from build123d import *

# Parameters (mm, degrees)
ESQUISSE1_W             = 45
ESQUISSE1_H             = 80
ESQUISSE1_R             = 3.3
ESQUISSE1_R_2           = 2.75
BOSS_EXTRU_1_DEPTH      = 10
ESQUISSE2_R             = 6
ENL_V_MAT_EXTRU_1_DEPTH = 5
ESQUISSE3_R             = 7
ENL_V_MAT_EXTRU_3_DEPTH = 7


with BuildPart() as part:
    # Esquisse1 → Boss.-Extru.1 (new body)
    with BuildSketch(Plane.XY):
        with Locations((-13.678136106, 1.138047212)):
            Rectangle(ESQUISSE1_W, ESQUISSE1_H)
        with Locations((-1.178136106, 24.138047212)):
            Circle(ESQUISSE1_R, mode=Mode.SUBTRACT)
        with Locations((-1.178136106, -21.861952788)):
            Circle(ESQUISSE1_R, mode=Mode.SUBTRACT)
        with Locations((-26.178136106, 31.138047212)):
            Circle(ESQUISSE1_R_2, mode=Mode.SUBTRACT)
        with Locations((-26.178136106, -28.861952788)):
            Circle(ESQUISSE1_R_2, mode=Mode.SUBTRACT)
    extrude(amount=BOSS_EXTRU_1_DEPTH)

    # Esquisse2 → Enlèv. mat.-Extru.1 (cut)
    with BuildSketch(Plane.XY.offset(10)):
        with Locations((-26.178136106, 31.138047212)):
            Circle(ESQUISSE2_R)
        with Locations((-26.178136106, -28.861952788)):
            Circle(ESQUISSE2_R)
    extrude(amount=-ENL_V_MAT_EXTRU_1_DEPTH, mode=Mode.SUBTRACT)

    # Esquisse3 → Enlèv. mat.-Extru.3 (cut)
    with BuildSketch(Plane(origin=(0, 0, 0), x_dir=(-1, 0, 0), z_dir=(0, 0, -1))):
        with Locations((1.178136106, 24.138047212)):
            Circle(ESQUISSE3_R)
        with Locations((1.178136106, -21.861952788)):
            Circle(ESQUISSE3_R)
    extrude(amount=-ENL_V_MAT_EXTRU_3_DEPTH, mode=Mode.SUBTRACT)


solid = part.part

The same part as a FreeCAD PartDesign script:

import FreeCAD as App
import Part
import Sketcher

V = App.Vector

doc = App.newDocument("Part")
body = doc.addObject("PartDesign::Body", "Body")

# Sketch on XY plane
sketch1 = doc.addObject("Sketcher::SketchObject", "Sketch")
body.addObject(sketch1)
sketch1.AttachmentSupport = (doc.XY_Plane, [""])
sketch1.MapMode = "FlatFace"
sketch1.addGeometry([
    Part.LineSegment(V(-36.2, 41.1, 0), V(-36.2, -38.9, 0)),  # 0
    Part.LineSegment(V(-36.2, -38.9, 0), V(8.8, -38.9, 0)),  # 1
    Part.LineSegment(V(8.8, -38.9, 0), V(8.8, 41.1, 0)),  # 2
    Part.LineSegment(V(8.8, 41.1, 0), V(-36.2, 41.1, 0)),  # 3
    Part.Circle(V(-26.2, -28.9, 0), V(0, 0, 1), 2.8),  # 4
    Part.Circle(V(-1.2, -21.9, 0), V(0, 0, 1), 3.3),  # 5
    Part.Circle(V(-26.2, 31.1, 0), V(0, 0, 1), 2.8),  # 6
    Part.Circle(V(-1.2, 24.1, 0), V(0, 0, 1), 3.3),  # 7
], False)
sketch1.addConstraint([
    Sketcher.Constraint("Coincident", 0, 2, 1, 1),
    Sketcher.Constraint("Coincident", 1, 2, 2, 1),
    Sketcher.Constraint("Coincident", 2, 2, 3, 1),
    Sketcher.Constraint("Coincident", 3, 2, 0, 1),
    Sketcher.Constraint("Vertical", 0),
    Sketcher.Constraint("Horizontal", 1),
    Sketcher.Constraint("Vertical", 2),
    Sketcher.Constraint("Horizontal", 3),
    Sketcher.Constraint("Equal", 4, 6),
    Sketcher.Constraint("Equal", 5, 7),
    Sketcher.Constraint("Vertical", 4, 3, 6, 3),
    Sketcher.Constraint("Vertical", 5, 3, 7, 3),
    Sketcher.Constraint("Diameter", 4, 5.5),
    Sketcher.Constraint("Diameter", 5, 6.6),
    Sketcher.Constraint("DistanceX", 1, 1, 1, 2, 45.0),
    Sketcher.Constraint("DistanceY", 0, 2, 0, 1, 80.0),
    Sketcher.Constraint("DistanceX", 4, 3, 5, 3, 25.0),
    Sketcher.Constraint("DistanceY", 4, 3, 5, 3, 7.0),
    Sketcher.Constraint("DistanceY", 5, 3, 6, 3, 53.0),
    Sketcher.Constraint("DistanceY", 7, 3, 6, 3, 7.0),
    Sketcher.Constraint("DistanceX", 0, 2, 4, 3, 10.0),
    Sketcher.Constraint("DistanceY", 0, 2, 4, 3, 10.0),
    Sketcher.Constraint("DistanceX", 4, 3, -1, 1, 26.178136),
    Sketcher.Constraint("DistanceY", 4, 3, -1, 1, 28.861953),
])
pad1 = doc.addObject("PartDesign::Pad", "Pad")
body.addObject(pad1)
pad1.Profile = sketch1
pad1.Length = 10

# Sketch on XY plane
sketch2 = doc.addObject("Sketcher::SketchObject", "Sketch001")
body.addObject(sketch2)
sketch2.AttachmentSupport = (doc.XY_Plane, [""])
sketch2.MapMode = "FlatFace"
sketch2.AttachmentOffset = App.Placement(V(0, 0, 10), App.Rotation())
sketch2.addGeometry([
    Part.Circle(V(-26, 31, 0), V(0, 0, 1), 6),
    Part.Circle(V(-26, -29, 0), V(0, 0, 1), 6),
], False)
sketch2.addConstraint([
    Sketcher.Constraint("Equal", 0, 1),
    Sketcher.Constraint("Vertical", 0, 3, 1, 3),
    Sketcher.Constraint("Diameter", 0, 12.0),
    Sketcher.Constraint("DistanceY", 1, 3, 0, 3, 60.0),
    Sketcher.Constraint("DistanceX", 0, 3, -1, 1, 26.178136),
    Sketcher.Constraint("DistanceY", -1, 1, 0, 3, 31.138047),
])
pocket1 = doc.addObject("PartDesign::Pocket", "Pocket")
body.addObject(pocket1)
pocket1.Profile = sketch2
pocket1.Length = 5

# Sketch on XY plane
sketch3 = doc.addObject("Sketcher::SketchObject", "Sketch002")
body.addObject(sketch3)
sketch3.AttachmentSupport = (doc.XY_Plane, [""])
sketch3.MapMode = "FlatFace"
sketch3.addGeometry([
    Part.Circle(V(-1, 24, 0), V(0, 0, 1), 7),
    Part.Circle(V(-1, -22, 0), V(0, 0, 1), 7),
], False)
sketch3.addConstraint([
    Sketcher.Constraint("Equal", 0, 1),
    Sketcher.Constraint("Vertical", 0, 3, 1, 3),
    Sketcher.Constraint("Diameter", 0, 14.0),
    Sketcher.Constraint("DistanceY", 1, 3, 0, 3, 46.0),
    Sketcher.Constraint("DistanceX", 0, 3, -1, 1, 1.178136),
    Sketcher.Constraint("DistanceY", -1, 1, 0, 3, 24.138047),
])
pocket2 = doc.addObject("PartDesign::Pocket", "Pocket001")
body.addObject(pocket2)
pocket2.Profile = sketch3
pocket2.Length = 7
pocket2.Reversed = True

doc.recompute()
